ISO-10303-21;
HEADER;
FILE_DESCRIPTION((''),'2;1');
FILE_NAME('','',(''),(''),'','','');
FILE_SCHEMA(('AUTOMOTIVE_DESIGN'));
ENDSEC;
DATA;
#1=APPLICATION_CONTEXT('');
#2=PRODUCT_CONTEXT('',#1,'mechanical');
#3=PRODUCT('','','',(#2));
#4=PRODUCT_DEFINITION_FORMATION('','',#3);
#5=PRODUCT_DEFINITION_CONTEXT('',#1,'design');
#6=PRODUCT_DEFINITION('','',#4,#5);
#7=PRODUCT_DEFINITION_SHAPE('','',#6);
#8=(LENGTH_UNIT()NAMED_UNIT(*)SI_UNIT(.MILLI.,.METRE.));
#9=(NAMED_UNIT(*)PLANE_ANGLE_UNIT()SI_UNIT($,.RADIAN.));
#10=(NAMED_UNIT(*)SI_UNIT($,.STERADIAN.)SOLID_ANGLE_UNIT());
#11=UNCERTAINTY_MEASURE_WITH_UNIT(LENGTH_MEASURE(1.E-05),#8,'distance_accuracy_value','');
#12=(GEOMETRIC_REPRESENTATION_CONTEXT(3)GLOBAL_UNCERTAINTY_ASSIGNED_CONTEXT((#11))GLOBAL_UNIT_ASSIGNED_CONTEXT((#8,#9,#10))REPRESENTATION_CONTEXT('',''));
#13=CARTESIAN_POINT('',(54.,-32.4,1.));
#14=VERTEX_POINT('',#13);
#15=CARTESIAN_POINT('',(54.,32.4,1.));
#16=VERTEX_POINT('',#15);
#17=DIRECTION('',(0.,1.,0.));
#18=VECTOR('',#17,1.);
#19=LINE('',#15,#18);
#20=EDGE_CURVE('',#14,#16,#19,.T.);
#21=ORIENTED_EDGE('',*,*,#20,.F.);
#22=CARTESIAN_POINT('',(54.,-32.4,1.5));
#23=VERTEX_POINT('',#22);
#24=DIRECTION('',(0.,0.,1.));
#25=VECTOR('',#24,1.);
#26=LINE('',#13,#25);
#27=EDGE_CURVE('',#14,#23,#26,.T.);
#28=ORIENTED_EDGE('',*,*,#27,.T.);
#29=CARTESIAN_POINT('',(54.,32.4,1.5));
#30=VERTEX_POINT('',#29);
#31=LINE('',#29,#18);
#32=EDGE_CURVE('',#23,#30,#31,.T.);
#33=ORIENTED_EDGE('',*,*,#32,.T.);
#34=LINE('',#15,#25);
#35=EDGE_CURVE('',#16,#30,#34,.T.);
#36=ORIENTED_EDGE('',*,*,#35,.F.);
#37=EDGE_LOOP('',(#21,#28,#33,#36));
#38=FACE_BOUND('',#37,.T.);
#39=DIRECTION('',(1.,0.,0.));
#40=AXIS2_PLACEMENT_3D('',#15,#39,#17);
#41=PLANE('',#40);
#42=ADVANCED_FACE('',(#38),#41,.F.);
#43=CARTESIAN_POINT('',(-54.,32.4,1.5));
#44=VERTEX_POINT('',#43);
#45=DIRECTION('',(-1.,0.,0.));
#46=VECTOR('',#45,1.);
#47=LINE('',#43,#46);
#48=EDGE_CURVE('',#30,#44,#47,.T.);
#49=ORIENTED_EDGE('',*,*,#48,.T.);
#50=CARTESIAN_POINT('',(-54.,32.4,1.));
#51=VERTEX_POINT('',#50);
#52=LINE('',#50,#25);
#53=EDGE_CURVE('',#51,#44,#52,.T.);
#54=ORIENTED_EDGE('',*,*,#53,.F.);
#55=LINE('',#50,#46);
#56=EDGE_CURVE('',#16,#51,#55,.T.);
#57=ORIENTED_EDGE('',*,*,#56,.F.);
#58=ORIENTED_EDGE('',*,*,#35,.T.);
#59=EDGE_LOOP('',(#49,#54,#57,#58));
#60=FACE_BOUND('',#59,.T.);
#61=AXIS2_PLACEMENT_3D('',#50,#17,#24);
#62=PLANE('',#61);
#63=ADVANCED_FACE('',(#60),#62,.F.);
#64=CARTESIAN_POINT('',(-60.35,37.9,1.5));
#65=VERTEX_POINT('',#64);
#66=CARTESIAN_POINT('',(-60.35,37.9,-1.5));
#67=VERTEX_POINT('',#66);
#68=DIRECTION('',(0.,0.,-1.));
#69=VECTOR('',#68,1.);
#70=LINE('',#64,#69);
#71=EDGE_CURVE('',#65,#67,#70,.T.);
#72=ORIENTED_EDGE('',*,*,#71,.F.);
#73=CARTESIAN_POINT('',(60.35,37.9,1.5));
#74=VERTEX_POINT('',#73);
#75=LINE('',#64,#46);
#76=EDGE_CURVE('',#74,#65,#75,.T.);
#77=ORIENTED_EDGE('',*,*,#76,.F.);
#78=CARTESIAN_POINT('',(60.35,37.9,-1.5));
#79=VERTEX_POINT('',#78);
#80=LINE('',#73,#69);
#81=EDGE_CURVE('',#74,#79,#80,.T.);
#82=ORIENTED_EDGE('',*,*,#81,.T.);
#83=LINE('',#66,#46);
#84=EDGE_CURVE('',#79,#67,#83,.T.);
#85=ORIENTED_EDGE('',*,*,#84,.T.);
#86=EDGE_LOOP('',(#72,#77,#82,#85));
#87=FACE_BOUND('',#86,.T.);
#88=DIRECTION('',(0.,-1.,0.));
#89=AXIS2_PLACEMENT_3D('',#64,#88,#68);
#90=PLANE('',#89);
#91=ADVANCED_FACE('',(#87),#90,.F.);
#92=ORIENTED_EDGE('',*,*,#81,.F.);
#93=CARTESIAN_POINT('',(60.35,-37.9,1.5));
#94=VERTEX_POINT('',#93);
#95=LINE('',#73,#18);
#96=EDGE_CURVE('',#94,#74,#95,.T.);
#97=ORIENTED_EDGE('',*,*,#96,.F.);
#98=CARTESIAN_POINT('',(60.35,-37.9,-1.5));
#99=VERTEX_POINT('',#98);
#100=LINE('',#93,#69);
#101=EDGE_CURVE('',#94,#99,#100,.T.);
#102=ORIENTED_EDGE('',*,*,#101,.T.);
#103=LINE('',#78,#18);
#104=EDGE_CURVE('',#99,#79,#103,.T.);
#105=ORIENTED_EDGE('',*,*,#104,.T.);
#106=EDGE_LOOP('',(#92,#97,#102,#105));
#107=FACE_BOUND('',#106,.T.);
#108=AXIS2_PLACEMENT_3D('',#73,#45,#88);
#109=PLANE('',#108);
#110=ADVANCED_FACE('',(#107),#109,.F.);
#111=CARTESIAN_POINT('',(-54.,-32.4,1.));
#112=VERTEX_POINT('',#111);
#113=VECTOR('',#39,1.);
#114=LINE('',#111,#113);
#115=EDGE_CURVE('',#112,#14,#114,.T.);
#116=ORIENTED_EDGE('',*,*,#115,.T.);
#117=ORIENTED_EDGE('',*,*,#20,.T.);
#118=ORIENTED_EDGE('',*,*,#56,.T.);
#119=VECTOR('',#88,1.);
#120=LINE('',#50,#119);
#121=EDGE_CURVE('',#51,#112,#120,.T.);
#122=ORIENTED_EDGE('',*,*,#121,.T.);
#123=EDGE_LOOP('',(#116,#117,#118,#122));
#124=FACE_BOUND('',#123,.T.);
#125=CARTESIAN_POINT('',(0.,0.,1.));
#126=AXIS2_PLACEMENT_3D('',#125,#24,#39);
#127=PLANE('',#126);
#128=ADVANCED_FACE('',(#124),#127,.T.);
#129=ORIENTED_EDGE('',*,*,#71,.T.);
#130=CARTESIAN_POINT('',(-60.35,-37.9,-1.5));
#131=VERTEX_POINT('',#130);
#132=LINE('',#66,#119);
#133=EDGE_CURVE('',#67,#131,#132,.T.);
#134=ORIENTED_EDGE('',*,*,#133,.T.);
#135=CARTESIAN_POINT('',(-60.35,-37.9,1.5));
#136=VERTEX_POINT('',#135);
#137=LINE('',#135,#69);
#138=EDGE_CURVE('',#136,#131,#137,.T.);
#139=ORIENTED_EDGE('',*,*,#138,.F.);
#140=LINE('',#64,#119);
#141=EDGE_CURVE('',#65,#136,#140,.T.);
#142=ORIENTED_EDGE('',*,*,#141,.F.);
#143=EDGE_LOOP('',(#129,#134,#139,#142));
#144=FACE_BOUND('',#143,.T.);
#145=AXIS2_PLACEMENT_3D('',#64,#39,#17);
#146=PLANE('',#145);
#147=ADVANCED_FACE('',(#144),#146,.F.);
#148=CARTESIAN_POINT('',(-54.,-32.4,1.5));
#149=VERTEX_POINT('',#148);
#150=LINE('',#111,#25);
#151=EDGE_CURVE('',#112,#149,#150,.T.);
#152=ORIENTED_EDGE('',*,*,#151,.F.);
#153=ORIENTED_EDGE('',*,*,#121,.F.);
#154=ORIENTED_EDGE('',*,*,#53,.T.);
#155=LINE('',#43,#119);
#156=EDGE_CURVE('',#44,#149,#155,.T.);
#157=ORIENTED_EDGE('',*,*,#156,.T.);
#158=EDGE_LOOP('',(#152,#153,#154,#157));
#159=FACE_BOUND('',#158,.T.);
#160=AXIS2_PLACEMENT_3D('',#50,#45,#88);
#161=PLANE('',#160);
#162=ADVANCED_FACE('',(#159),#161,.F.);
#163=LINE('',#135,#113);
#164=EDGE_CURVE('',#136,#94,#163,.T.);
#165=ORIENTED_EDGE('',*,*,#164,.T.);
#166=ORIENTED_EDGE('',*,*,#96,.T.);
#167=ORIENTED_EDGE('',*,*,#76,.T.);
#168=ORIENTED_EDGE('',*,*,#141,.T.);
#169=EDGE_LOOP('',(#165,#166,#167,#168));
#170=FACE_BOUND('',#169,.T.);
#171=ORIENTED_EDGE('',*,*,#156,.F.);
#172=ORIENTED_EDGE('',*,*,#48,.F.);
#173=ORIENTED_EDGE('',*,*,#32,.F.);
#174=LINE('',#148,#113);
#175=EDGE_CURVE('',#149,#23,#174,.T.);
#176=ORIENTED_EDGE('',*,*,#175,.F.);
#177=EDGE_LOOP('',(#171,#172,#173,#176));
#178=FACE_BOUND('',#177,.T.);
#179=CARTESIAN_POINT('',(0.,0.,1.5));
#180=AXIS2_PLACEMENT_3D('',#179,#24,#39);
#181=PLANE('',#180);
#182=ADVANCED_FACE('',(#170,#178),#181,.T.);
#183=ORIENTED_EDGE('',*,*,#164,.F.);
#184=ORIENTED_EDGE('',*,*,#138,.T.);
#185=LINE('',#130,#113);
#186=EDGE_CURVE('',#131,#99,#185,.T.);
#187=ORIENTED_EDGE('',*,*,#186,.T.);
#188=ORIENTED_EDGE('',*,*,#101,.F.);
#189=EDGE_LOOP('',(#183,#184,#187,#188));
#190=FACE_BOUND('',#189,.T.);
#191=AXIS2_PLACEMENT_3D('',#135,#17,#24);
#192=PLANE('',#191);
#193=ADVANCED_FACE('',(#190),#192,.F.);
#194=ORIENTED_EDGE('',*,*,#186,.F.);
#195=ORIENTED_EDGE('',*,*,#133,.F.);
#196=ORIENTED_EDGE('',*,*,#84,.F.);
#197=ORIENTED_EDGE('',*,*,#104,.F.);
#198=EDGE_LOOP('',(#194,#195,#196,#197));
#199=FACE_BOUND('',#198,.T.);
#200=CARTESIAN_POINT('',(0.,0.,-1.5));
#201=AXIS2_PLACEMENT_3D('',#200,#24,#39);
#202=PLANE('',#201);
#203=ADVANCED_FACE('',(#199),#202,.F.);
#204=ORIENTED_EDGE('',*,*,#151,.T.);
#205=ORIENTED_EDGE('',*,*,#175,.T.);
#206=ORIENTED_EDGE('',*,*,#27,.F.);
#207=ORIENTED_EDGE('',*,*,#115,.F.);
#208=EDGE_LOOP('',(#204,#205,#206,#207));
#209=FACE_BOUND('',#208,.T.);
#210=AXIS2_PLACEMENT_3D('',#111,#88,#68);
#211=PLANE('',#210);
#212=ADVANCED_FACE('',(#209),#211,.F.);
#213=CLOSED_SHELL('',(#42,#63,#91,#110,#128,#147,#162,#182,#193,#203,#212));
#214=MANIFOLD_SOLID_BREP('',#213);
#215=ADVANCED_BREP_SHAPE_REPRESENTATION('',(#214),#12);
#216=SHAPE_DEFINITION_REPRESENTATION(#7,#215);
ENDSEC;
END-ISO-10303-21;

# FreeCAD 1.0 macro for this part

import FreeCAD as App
import Part
import Sketcher


def add_polygon(sketch, points):
    """Adds a closed chain of lines whose ends are joined by coincident constraints."""
    first, n = sketch.GeometryCount, len(points)
    for a, b in zip(points, points[1:] + points[:1]):
        sketch.addGeometry(Part.LineSegment(App.Vector(*a, 0), App.Vector(*b, 0)), False)
    for i in range(n):
        sketch.addConstraint(Sketcher.Constraint("Coincident", first + i, 2, first + (i + 1) % n, 1))

doc = App.newDocument("Part")
body = doc.addObject("PartDesign::Body", "Body")

# Sketch on XY plane
sketch1 = body.newObject("Sketcher::SketchObject", "Sketch")
sketch1.AttachmentSupport = (doc.getObject("XY_Plane"), [""])
sketch1.MapMode = "FlatFace"
add_polygon(sketch1, [(-60, 38), (-60, -38), (60, -38), (60, 38)])  # lines 0-3
sketch1.addConstraint([
    Sketcher.Constraint("Vertical", 0),
    Sketcher.Constraint("Horizontal", 1),
    Sketcher.Constraint("Vertical", 2),
    Sketcher.Constraint("Horizontal", 3),
    Sketcher.Constraint("Symmetric", 0, 2, 2, 2, -1, 1),
    Sketcher.Constraint("DistanceX", 1, 1, 1, 2, 120.7),
    Sketcher.Constraint("DistanceY", 0, 2, 0, 1, 75.8),
])
pad1 = body.newObject("PartDesign::Pad", "Pad")
pad1.Profile = sketch1
pad1.Length = 3
pad1.Midplane = True

# Sketch on XY plane
sketch2 = body.newObject("Sketcher::SketchObject", "Sketch001")
sketch2.AttachmentSupport = (doc.getObject("XY_Plane"), [""])
sketch2.MapMode = "FlatFace"
sketch2.AttachmentOffset = App.Placement(App.Vector(0, 0, 1.5), App.Rotation())
add_polygon(sketch2, [(-54, 32), (-54, -32), (54, -32), (54, 32)])  # lines 0-3
sketch2.addConstraint([
    Sketcher.Constraint("Vertical", 0),
    Sketcher.Constraint("Horizontal", 1),
    Sketcher.Constraint("Vertical", 2),
    Sketcher.Constraint("Horizontal", 3),
    Sketcher.Constraint("Symmetric", 0, 2, 2, 2, -1, 1),
    Sketcher.Constraint("DistanceX", 1, 1, 1, 2, 108.0),
    Sketcher.Constraint("DistanceY", 0, 2, 0, 1, 64.8),
])
pocket1 = body.newObject("PartDesign::Pocket", "Pocket")
pocket1.Profile = sketch2
pocket1.Length = 0.5

doc.recompute()
